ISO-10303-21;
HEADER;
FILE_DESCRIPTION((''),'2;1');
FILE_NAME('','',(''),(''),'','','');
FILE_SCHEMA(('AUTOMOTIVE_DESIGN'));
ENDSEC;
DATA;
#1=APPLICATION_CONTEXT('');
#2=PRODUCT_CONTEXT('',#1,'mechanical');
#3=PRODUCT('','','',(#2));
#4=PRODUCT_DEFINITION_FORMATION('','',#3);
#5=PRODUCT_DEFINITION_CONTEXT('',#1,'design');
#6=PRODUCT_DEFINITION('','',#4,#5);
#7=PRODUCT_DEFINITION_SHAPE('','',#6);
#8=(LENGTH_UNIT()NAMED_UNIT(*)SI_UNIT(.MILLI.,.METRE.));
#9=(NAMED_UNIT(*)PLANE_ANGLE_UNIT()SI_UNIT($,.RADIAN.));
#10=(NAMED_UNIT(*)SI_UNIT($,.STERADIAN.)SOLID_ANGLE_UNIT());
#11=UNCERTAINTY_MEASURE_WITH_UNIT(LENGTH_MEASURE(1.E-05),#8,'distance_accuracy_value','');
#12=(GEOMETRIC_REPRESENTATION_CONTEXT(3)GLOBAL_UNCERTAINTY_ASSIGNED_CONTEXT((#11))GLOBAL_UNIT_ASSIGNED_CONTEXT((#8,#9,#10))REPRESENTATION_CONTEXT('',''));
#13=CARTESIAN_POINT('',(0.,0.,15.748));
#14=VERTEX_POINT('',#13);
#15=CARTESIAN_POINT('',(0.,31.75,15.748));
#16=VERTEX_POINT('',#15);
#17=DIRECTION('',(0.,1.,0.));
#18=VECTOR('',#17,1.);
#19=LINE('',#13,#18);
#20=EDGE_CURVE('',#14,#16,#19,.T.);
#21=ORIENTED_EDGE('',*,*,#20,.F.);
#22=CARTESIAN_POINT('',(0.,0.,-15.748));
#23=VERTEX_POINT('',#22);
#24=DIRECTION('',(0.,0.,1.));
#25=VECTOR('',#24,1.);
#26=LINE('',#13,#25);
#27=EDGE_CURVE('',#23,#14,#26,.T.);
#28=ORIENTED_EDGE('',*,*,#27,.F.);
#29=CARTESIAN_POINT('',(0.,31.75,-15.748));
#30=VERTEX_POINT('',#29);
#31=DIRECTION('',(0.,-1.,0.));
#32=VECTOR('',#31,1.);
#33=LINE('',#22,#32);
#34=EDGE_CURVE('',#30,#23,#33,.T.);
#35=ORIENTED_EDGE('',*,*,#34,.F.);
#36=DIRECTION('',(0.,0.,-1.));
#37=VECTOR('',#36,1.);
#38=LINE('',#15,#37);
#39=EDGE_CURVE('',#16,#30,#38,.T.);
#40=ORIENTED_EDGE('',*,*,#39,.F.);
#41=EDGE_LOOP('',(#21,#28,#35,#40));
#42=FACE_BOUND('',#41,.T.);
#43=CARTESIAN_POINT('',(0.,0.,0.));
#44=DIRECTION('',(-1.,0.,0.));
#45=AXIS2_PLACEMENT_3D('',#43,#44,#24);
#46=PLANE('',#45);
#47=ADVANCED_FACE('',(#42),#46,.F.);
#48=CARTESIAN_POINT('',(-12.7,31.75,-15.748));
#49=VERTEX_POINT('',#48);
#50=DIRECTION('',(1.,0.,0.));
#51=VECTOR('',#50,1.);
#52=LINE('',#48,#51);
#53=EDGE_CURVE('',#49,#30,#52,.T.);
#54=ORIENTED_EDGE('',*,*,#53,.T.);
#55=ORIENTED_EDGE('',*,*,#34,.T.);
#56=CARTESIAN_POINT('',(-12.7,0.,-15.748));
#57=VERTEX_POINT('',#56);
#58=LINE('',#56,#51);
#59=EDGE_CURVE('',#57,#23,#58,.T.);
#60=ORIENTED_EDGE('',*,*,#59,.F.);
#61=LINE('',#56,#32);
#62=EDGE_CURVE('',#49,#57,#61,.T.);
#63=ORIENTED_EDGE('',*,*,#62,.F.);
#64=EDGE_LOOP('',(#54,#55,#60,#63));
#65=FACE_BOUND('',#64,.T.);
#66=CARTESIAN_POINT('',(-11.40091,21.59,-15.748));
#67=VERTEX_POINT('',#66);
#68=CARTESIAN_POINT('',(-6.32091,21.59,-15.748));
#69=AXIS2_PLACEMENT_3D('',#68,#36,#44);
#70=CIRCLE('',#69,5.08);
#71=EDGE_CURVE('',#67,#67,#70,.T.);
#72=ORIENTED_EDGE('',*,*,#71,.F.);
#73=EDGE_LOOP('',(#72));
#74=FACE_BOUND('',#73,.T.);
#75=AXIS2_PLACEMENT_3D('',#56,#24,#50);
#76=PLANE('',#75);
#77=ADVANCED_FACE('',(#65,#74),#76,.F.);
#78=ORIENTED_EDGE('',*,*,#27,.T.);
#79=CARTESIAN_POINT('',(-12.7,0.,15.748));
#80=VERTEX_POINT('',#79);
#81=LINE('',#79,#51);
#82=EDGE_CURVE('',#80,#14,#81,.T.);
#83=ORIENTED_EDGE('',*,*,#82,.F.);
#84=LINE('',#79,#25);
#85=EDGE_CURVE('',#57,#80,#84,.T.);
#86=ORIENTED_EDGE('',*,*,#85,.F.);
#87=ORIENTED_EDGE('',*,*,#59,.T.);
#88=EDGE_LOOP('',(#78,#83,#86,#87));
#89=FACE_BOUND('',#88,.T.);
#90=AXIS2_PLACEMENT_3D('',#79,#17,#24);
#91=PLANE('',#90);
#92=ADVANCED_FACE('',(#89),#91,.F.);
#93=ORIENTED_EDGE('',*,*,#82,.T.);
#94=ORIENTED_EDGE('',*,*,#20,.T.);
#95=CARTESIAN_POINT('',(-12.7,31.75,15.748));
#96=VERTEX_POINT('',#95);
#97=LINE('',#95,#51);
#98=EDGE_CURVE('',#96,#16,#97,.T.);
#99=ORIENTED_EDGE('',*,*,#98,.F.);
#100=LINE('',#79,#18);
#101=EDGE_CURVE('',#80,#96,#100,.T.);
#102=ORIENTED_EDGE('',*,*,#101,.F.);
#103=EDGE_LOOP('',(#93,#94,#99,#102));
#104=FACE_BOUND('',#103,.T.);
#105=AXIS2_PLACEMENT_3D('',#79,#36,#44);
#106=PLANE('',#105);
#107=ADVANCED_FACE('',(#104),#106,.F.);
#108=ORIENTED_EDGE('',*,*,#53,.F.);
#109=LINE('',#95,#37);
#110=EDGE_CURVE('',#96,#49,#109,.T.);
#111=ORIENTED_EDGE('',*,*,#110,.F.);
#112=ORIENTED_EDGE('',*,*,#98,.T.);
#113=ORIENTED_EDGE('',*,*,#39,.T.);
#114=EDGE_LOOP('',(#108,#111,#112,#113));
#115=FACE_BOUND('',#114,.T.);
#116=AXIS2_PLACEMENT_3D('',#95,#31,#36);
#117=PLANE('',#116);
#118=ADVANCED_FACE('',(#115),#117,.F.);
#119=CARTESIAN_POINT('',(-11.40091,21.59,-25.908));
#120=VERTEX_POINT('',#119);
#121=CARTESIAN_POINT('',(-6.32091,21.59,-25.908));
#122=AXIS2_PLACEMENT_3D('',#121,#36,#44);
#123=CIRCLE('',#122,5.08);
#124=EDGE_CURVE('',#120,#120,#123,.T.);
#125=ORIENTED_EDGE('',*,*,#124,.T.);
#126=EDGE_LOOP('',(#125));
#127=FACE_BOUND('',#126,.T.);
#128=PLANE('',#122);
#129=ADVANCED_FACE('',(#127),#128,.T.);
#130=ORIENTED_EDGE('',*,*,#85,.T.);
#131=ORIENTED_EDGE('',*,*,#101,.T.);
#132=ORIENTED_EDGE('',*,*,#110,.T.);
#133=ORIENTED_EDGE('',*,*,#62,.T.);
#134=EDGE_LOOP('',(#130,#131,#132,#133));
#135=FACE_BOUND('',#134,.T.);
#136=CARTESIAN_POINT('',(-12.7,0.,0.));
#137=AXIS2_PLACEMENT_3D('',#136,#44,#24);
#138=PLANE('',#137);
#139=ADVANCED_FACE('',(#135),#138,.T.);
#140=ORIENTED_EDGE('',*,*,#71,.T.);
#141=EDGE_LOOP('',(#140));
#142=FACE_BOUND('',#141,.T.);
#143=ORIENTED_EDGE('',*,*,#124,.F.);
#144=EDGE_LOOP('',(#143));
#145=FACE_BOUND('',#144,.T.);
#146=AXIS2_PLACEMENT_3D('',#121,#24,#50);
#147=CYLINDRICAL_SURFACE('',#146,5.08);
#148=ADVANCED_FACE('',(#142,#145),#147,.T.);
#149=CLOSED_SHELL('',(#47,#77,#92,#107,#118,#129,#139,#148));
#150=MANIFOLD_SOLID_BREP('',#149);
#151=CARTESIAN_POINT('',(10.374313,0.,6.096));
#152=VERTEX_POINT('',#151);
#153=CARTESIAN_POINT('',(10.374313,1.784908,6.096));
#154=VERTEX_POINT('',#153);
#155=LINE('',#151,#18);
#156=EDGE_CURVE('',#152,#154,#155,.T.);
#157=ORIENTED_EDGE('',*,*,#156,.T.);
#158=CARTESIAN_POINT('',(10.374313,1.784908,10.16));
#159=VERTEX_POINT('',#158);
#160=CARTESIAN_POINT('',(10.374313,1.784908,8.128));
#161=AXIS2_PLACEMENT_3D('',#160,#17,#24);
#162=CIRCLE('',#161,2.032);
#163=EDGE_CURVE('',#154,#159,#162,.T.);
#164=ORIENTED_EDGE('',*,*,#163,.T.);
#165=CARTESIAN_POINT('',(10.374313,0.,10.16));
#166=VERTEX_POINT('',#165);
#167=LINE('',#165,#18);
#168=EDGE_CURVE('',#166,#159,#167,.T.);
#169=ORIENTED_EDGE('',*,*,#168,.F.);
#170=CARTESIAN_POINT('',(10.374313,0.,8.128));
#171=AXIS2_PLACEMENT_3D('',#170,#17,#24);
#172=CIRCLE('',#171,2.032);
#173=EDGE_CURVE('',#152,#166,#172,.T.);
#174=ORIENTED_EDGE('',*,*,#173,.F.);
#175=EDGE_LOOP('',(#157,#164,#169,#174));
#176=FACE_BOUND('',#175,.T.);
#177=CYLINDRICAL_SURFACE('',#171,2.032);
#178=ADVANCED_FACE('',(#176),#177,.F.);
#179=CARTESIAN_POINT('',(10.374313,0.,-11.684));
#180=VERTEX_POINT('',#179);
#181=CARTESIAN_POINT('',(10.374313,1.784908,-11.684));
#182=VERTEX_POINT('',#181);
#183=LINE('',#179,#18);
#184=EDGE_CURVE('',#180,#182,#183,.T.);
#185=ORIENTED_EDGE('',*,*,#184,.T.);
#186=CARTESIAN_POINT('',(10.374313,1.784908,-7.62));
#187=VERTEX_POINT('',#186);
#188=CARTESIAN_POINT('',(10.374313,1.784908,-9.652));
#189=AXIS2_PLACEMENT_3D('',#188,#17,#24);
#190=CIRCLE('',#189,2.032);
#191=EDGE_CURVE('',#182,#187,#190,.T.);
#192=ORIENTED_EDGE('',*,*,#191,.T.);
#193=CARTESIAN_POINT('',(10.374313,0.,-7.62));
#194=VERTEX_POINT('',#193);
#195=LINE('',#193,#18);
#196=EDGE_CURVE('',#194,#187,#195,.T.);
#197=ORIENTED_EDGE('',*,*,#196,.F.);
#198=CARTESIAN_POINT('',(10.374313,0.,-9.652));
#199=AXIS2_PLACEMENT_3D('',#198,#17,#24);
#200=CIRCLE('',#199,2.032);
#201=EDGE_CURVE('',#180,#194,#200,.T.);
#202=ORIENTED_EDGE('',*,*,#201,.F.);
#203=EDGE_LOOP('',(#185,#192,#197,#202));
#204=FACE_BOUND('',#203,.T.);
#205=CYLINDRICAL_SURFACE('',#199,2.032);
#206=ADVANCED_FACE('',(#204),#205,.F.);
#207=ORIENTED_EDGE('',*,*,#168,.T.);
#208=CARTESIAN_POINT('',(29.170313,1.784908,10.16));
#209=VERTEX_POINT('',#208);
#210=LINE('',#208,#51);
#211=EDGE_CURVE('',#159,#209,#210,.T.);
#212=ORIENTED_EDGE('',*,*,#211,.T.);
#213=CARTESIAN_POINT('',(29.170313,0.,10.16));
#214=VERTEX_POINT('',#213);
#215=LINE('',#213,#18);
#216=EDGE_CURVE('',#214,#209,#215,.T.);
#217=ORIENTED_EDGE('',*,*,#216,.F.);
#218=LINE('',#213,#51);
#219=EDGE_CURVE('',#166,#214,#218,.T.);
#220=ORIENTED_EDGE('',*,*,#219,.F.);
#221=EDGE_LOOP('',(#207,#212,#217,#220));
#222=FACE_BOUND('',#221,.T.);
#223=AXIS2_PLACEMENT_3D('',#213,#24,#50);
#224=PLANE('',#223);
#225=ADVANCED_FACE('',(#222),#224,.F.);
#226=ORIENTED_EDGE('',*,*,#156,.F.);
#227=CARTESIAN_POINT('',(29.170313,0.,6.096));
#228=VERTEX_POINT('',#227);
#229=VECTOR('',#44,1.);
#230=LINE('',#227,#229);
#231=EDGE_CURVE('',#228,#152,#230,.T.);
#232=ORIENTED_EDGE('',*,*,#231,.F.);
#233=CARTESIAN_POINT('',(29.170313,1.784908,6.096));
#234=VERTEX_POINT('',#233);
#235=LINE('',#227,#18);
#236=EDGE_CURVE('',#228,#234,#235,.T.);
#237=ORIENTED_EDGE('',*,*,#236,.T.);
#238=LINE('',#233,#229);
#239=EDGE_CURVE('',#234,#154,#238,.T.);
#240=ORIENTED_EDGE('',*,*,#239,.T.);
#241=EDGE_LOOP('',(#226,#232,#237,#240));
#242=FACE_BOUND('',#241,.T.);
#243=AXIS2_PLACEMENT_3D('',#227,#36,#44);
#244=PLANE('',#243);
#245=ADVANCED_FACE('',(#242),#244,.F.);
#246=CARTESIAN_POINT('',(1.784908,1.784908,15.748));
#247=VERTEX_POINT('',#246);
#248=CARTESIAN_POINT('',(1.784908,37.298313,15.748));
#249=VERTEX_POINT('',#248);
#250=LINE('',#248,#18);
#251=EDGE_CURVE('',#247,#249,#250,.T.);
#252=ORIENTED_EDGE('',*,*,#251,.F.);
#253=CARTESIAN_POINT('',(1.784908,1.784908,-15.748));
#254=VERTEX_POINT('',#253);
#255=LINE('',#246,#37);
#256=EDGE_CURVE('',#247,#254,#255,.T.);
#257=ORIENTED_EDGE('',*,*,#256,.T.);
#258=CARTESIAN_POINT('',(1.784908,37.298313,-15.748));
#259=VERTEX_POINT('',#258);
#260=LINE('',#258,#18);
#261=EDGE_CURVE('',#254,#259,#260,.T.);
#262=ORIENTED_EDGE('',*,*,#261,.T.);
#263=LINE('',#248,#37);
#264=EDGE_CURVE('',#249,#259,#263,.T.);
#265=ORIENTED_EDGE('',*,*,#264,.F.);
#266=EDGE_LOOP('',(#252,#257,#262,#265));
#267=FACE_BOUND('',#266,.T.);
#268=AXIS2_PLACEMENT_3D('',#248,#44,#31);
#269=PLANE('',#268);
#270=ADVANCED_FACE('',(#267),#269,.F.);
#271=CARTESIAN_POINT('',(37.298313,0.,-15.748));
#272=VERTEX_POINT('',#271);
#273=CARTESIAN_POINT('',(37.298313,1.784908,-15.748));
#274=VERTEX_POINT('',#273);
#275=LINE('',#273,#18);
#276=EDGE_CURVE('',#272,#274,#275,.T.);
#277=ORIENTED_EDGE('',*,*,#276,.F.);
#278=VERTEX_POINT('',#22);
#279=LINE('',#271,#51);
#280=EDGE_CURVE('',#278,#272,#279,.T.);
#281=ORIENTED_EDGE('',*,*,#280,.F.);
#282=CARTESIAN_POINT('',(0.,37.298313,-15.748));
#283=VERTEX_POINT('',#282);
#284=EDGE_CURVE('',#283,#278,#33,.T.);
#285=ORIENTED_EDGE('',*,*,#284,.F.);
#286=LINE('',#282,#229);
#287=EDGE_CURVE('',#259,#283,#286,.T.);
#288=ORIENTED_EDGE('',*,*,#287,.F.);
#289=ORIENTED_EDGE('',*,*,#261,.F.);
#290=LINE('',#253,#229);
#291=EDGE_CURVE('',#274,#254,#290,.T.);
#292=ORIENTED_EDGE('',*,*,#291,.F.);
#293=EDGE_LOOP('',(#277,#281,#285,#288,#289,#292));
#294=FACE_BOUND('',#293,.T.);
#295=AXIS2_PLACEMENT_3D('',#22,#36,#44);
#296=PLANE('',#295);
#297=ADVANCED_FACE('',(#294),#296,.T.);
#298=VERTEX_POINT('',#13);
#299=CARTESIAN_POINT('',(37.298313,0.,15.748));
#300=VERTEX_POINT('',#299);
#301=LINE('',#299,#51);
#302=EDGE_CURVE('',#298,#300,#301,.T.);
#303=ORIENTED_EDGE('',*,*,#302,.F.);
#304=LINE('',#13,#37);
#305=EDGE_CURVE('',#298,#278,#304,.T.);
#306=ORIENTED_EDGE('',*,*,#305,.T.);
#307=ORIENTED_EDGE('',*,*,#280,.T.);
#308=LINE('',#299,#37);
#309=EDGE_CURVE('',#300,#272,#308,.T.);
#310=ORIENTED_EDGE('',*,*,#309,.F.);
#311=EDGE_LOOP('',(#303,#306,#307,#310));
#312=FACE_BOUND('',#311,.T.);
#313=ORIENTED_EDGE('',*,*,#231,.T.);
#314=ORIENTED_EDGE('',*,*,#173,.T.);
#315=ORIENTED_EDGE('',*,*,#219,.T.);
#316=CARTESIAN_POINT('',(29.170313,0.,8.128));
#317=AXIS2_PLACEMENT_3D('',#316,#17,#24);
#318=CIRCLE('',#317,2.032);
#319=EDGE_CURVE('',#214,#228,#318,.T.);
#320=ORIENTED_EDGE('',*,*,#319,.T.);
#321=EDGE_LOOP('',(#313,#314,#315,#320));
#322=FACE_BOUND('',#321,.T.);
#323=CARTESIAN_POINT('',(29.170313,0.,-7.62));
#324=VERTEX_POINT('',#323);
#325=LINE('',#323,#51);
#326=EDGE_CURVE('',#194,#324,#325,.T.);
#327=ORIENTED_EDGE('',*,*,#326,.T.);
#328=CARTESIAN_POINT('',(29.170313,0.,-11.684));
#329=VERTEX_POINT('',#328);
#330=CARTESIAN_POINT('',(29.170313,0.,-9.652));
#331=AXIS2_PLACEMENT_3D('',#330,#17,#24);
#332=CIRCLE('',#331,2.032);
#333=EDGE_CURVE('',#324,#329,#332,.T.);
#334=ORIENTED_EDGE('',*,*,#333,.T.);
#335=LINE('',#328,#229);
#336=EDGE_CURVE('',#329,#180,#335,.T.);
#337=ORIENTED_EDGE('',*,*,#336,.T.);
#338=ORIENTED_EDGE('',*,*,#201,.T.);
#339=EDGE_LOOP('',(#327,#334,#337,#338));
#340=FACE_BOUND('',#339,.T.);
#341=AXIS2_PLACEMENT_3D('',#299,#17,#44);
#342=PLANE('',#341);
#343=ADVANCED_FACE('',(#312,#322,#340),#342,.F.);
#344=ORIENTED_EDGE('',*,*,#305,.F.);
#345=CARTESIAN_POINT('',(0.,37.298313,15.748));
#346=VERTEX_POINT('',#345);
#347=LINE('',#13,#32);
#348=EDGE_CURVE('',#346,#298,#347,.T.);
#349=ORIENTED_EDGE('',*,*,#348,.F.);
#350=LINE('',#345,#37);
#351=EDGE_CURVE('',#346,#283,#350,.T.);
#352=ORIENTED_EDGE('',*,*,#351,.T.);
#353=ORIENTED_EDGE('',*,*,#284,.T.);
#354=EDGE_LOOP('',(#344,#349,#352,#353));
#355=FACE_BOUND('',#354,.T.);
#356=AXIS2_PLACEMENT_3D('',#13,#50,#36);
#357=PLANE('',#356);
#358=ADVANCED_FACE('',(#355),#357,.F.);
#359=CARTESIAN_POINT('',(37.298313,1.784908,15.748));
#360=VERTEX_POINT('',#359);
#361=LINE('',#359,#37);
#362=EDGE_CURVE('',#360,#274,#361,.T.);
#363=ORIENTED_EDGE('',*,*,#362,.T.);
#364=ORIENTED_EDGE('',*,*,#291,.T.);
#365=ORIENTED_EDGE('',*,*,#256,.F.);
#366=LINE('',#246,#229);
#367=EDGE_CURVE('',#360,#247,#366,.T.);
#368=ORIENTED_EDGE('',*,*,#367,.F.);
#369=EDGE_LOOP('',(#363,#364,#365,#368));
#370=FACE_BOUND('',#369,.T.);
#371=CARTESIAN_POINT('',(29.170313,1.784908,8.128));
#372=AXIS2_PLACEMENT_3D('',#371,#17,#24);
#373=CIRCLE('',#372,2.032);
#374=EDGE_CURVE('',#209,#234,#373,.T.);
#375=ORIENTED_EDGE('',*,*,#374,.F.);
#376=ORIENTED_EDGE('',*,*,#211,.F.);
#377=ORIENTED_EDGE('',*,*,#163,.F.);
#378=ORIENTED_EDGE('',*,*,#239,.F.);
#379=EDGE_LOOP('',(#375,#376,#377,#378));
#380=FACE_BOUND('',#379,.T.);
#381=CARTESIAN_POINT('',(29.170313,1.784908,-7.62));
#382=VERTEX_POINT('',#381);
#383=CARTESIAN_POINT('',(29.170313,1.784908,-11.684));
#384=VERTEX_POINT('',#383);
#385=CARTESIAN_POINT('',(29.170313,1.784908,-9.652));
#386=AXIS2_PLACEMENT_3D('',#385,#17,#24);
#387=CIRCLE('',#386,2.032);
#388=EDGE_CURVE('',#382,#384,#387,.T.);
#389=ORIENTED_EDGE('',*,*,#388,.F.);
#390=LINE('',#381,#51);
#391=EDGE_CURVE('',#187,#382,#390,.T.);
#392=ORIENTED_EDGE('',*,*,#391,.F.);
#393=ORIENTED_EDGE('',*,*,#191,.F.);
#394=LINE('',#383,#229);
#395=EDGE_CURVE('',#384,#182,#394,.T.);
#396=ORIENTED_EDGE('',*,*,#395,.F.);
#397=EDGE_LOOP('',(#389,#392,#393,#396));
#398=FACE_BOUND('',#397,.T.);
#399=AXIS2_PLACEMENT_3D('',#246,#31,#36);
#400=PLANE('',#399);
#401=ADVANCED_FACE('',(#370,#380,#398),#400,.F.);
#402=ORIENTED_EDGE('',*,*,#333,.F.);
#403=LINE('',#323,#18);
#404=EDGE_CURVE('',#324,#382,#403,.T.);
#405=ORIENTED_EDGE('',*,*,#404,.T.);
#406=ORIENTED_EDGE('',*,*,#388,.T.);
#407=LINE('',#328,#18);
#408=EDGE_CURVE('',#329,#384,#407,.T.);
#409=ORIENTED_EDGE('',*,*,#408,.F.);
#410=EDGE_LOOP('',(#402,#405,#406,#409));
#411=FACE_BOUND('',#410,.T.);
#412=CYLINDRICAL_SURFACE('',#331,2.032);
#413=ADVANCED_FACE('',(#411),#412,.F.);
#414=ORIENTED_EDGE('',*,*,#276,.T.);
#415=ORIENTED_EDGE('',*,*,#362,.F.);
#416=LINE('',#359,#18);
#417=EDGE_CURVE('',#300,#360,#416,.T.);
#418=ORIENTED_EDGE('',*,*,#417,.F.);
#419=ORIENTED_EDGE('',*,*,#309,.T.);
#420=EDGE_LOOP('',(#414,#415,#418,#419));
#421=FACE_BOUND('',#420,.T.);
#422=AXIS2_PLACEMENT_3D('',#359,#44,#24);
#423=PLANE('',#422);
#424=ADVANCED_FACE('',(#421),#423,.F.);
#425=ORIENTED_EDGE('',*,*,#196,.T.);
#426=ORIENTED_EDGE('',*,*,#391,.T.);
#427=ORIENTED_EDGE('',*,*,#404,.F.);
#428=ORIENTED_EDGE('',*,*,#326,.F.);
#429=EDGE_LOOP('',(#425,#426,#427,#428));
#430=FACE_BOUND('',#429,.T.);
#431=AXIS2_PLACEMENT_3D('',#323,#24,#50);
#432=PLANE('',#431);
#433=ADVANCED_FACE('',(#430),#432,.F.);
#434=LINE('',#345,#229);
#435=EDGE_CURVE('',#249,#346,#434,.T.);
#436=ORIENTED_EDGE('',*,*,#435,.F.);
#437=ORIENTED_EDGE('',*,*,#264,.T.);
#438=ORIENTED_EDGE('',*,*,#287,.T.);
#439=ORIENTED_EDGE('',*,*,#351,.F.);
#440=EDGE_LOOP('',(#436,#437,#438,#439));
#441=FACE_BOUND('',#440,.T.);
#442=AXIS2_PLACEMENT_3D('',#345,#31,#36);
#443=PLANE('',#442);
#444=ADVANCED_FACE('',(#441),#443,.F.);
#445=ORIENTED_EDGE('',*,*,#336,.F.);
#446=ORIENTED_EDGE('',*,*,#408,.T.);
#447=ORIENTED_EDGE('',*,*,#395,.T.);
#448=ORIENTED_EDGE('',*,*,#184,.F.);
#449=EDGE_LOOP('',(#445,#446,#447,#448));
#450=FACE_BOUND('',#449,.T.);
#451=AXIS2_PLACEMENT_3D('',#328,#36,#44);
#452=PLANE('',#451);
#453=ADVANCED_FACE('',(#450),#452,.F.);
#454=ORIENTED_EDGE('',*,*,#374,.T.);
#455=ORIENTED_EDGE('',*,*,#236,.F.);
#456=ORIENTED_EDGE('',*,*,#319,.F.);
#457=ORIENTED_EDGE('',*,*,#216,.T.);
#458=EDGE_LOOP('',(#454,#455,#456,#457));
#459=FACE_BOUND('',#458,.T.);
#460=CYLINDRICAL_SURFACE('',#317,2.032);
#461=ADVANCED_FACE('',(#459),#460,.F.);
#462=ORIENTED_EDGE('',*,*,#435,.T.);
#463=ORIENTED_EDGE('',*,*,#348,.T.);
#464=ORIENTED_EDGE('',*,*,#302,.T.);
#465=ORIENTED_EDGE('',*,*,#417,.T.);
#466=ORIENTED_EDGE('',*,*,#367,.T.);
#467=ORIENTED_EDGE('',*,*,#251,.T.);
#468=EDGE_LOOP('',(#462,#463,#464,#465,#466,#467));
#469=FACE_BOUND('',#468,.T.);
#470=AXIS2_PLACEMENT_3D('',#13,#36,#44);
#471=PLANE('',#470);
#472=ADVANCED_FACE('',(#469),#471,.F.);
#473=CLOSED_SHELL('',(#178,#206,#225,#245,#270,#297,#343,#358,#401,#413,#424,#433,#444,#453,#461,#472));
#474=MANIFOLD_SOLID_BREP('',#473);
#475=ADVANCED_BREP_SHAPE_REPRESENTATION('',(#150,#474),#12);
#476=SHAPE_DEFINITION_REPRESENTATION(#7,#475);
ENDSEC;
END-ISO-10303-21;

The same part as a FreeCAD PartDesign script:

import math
import FreeCAD as App
import Part
import Sketcher

V = App.Vector
Q = App.Units.Quantity


def add_polygon(sketch, points):
    """Adds a closed chain of lines whose ends are joined by coincident constraints."""
    first, n = sketch.GeometryCount, len(points)
    for a, b in zip(points, points[1:] + points[:1]):
        sketch.addGeometry(Part.LineSegment(App.Vector(*a, 0), App.Vector(*b, 0)), False)
    for i in range(n):
        sketch.addConstraint(Sketcher.Constraint("Coincident", first + i, 2, first + (i + 1) % n, 1))

doc = App.newDocument("Part")
body = doc.addObject("PartDesign::Body", "Body")

# Sketch on XY plane
sketch1 = body.newObject("Sketcher::SketchObject", "Sketch")
sketch1.AttachmentSupport = (doc.getObject("XY_Plane"), [""])
sketch1.MapMode = "FlatFace"
add_polygon(sketch1, [(0, 37.298313), (0, 0), (37.298313, 0), (37.298313, 1.784908), (1.784908, 1.784908), (1.784908, 37.298313)])  # lines 0-5
sketch1.addConstraint(Sketcher.Constraint("Vertical", 0))
sketch1.addConstraint(Sketcher.Constraint("Horizontal", 1))
sketch1.addConstraint(Sketcher.Constraint("Vertical", 2))
sketch1.addConstraint(Sketcher.Constraint("Horizontal", 3))
sketch1.addConstraint(Sketcher.Constraint("Vertical", 4))
sketch1.addConstraint(Sketcher.Constraint("Horizontal", 5))
sketch1.addConstraint(Sketcher.Constraint("Coincident", 0, 2, -1, 1))
sketch1.addConstraint(Sketcher.Constraint("Equal", 1, 0))
sketch1.addConstraint(Sketcher.Constraint("Equal", 5, 2))
sketch1.addConstraint(Sketcher.Constraint("DistanceX", 1, 1, 1, 2, 37.298313))
sketch1.addConstraint(Sketcher.Constraint("DistanceX", 3, 2, 3, 1, 35.513405))
pad1 = body.newObject("PartDesign::Pad", "Pad")
pad1.Profile = sketch1
pad1.Length = Q("1.24 in")
pad1.Midplane = True

# Sketch on XZ plane
sketch2 = body.newObject("Sketcher::SketchObject", "Sketch001")
sketch2.AttachmentSupport = (doc.getObject("XZ_Plane"), [""])
sketch2.MapMode = "FlatFace"
sketch2.AttachmentOffset = App.Placement(V(0, 0, -1.784908), App.Rotation())
sketch2.addGeometry(Part.LineSegment(V(29.170313, -11.684, 0), V(10.374313, -11.684, 0)), False)
sketch2.addGeometry(Part.ArcOfCircle(Part.Circle(V(10.374313, -9.652, 0), V(0, 0, 1), 2.032), math.radians(90), math.radians(270)), False)
sketch2.addGeometry(Part.LineSegment(V(10.374313, -7.62, 0), V(29.170313, -7.62, 0)), False)
sketch2.addGeometry(Part.ArcOfCircle(Part.Circle(V(29.170313, -9.652, 0), V(0, 0, 1), 2.032), math.radians(-90), math.radians(90)), False)
sketch2.addConstraint(Sketcher.Constraint("Tangent", 0, 2, 1, 2))
sketch2.addConstraint(Sketcher.Constraint("Tangent", 1, 1, 2, 1))
sketch2.addConstraint(Sketcher.Constraint("Tangent", 2, 2, 3, 2))
sketch2.addConstraint(Sketcher.Constraint("Tangent", 3, 1, 0, 1))
sketch2.addConstraint(Sketcher.Constraint("Horizontal", 0))
sketch2.addConstraint(Sketcher.Constraint("Horizontal", 2))
sketch2.addConstraint(Sketcher.Constraint("Radius", 1, Q("0.08 in")))
sketch2.addConstraint(Sketcher.Constraint("DistanceX", 0, 2, 0, 1, Q("0.74 in")))
sketch2.addConstraint(Sketcher.Constraint("DistanceY", 1, 1, -1, 1, Q("0.3 in")))
sketch2.addConstraint(Sketcher.Constraint("DistanceX", -1, 1, 1, 3, 10.374313))
pocket1 = body.newObject("PartDesign::Pocket", "Pocket")
pocket1.Profile = sketch2
pocket1.Type = "ThroughAll"
pocket1.Reversed = True
doc.recompute()

linearpattern = body.newObject("PartDesign::LinearPattern", "LinearPattern")
linearpattern.Originals = [pocket1]
linearpattern.Direction = (doc.getObject("Z_Axis"), [""])
linearpattern.Mode = "offset"
linearpattern.Offset = Q("0.7 in")
linearpattern.Occurrences = 2
body.Tip = linearpattern
body2 = doc.addObject("PartDesign::Body", "Body001")

# Sketch on YZ plane
sketch3 = body2.newObject("Sketcher::SketchObject", "Sketch002")
sketch3.AttachmentSupport = (doc.getObject("YZ_Plane001"), [""])
sketch3.MapMode = "FlatFace"
add_polygon(sketch3, [(31.75, -15.748), (0, -15.748), (0, 15.748), (31.75, 15.748)])  # lines 0-3
sketch3.addConstraint(Sketcher.Constraint("Horizontal", 0))
sketch3.addConstraint(Sketcher.Constraint("Vertical", 1))
sketch3.addConstraint(Sketcher.Constraint("Horizontal", 2))
sketch3.addConstraint(Sketcher.Constraint("Vertical", 3))
sketch3.addConstraint(Sketcher.Constraint("Symmetric", 0, 2, 1, 2, -1, 1))
sketch3.addConstraint(Sketcher.Constraint("DistanceX", 0, 2, 0, 1, Q("1.25 in")))
sketch3.addConstraint(Sketcher.Constraint("DistanceY", 1, 1, 1, 2, Q("1.24 in")))
pad2 = body2.newObject("PartDesign::Pad", "Pad001")
pad2.Profile = sketch3
pad2.Length = Q("0.5 in")
pad2.Reversed = True

# Sketch on XY plane
sketch4 = body2.newObject("Sketcher::SketchObject", "Sketch003")
sketch4.AttachmentSupport = (doc.getObject("XY_Plane001"), [""])
sketch4.MapMode = "FlatFace"
sketch4.AttachmentOffset = App.Placement(V(0, 0, -0.62 * 25.4), App.Rotation())
sketch4.addGeometry(Part.Circle(V(-6.32091, 21.59, 0), V(0, 0, 1), 5.08), False)
sketch4.addConstraint(Sketcher.Constraint("Diameter", 0, Q("0.4 in")))
sketch4.addConstraint(Sketcher.Constraint("DistanceY", -1, 1, 0, 3, Q("0.85 in")))
sketch4.addConstraint(Sketcher.Constraint("DistanceX", 0, 3, -1, 1, 6.32091))
pad3 = body2.newObject("PartDesign::Pad", "Pad002")
pad3.Profile = sketch4
pad3.Length = Q("0.4 in")
pad3.Reversed = True

doc.recompute()
